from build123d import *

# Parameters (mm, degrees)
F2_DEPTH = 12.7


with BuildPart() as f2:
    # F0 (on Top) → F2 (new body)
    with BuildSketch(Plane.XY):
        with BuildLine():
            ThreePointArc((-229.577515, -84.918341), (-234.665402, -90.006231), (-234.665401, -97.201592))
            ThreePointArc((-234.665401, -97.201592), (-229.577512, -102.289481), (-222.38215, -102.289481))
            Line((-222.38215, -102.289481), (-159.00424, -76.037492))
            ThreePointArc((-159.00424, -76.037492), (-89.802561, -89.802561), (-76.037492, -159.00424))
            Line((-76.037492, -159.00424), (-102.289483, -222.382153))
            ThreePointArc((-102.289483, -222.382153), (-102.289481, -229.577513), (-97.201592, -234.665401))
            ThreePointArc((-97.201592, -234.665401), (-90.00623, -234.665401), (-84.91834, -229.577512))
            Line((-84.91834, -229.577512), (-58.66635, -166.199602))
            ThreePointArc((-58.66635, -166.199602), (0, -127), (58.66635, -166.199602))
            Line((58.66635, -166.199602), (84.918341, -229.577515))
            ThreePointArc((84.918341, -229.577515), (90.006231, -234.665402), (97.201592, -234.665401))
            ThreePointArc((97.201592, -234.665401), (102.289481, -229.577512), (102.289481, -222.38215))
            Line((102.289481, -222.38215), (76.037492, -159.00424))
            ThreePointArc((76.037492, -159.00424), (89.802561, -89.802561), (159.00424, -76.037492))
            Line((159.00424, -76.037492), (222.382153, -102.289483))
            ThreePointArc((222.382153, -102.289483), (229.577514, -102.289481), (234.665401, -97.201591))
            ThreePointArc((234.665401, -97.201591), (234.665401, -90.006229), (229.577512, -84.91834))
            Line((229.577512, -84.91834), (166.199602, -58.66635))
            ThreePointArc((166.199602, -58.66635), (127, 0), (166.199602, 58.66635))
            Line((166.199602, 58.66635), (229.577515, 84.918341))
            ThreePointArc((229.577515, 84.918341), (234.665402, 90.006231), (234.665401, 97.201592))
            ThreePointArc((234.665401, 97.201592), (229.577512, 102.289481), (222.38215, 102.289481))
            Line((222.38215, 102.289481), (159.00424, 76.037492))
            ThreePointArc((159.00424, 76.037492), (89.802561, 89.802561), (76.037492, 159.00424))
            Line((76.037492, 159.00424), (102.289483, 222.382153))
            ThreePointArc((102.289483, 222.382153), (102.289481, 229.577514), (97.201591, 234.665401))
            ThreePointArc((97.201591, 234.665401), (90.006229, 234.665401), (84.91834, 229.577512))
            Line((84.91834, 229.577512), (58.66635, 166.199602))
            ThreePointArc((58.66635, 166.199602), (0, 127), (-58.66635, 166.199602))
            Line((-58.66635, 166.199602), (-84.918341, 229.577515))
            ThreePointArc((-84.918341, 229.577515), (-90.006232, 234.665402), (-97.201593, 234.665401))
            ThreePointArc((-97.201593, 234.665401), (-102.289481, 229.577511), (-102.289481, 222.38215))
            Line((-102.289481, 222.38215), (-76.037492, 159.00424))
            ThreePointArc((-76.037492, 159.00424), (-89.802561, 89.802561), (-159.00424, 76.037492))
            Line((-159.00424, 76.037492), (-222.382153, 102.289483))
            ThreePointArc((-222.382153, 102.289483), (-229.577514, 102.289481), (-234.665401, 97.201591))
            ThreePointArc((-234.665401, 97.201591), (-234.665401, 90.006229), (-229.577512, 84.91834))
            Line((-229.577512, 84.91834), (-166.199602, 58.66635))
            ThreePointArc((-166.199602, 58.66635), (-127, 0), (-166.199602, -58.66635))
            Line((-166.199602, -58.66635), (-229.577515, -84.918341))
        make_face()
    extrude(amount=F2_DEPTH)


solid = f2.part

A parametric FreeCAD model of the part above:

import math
import FreeCAD as App
import Part
import Sketcher

V = App.Vector
Q = App.Units.Quantity

doc = App.newDocument("Part")
params = doc.addObject("Spreadsheet::Sheet", "Params")
for row, (alias, value) in enumerate([
    ("sketch1_radius", "2.5 in"),
    ("pad1_length", "0.5 in"),
], start=1):
    params.set(f"A{row}", alias)
    params.set(f"B{row}", "=" + value)
    params.setAlias(f"B{row}", alias)

body = doc.addObject("PartDesign::Body", "Body")

# Sketch on XY plane
sketch1 = body.newObject("Sketcher::SketchObject", "Sketch")
sketch1.AttachmentSupport = (doc.getObject("XY_Plane"), [""])
sketch1.MapMode = "FlatFace"
sketch1.addGeometry([
    Part.ArcOfCircle(Part.Circle(V(-226, -94, 0), V(0, 0, 1), 9), math.radians(113), math.radians(203)),  # 0
    Part.ArcOfCircle(Part.Circle(V(-226, -94, 0), V(0, 0, 1), 9), math.radians(-157), math.radians(-67)),  # 1
    Part.LineSegment(V(-222, -102, 0), V(-159, -76, 0)),  # 2
    Part.ArcOfCircle(Part.Circle(V(-135, -135, 0), V(0, 0, 1), 63), math.radians(-23), math.radians(113)),  # 3
    Part.LineSegment(V(-76, -159, 0), V(-102, -222, 0)),  # 4
    Part.ArcOfCircle(Part.Circle(V(-94, -226, 0), V(0, 0, 1), 9), math.radians(158), math.radians(248)),  # 5
    Part.ArcOfCircle(Part.Circle(V(-94, -226, 0), V(0, 0, 1), 9), math.radians(-112), math.radians(-23)),  # 6
    Part.LineSegment(V(-85, -230, 0), V(-59, -166, 0)),  # 7
    Part.ArcOfCircle(Part.Circle(V(0, -190, 0), V(0, 0, 1), 63), math.radians(22), math.radians(158)),  # 8
    Part.LineSegment(V(59, -166, 0), V(85, -230, 0)),  # 9
    Part.ArcOfCircle(Part.Circle(V(94, -226, 0), V(0, 0, 1), 9), math.radians(-157), math.radians(-67)),  # 10
    Part.ArcOfCircle(Part.Circle(V(94, -226, 0), V(0, 0, 1), 9), math.radians(-67), math.radians(23)),  # 11
    Part.LineSegment(V(102, -222, 0), V(76, -159, 0)),  # 12
    Part.ArcOfCircle(Part.Circle(V(135, -135, 0), V(0, 0, 1), 63), math.radians(67), math.radians(203)),  # 13
    Part.LineSegment(V(159, -76, 0), V(222, -102, 0)),  # 14
    Part.ArcOfCircle(Part.Circle(V(226, -94, 0), V(0, 0, 1), 9), math.radians(-112), math.radians(-22)),  # 15
    Part.ArcOfCircle(Part.Circle(V(226, -94, 0), V(0, 0, 1), 9), math.radians(-23), math.radians(67)),  # 16
    Part.LineSegment(V(230, -85, 0), V(166, -59, 0)),  # 17
    Part.ArcOfCircle(Part.Circle(V(190, 0, 0), V(0, 0, 1), 63), math.radians(112), math.radians(248)),  # 18
    Part.LineSegment(V(166, 59, 0), V(230, 85, 0)),  # 19
    Part.ArcOfCircle(Part.Circle(V(226, 94, 0), V(0, 0, 1), 9), math.radians(-67), math.radians(23)),  # 20
    Part.ArcOfCircle(Part.Circle(V(226, 94, 0), V(0, 0, 1), 9), math.radians(23), math.radians(113)),  # 21
    Part.LineSegment(V(222, 102, 0), V(159, 76, 0)),  # 22
    Part.ArcOfCircle(Part.Circle(V(135, 135, 0), V(0, 0, 1), 63), math.radians(157), math.radians(293)),  # 23
    Part.LineSegment(V(76, 159, 0), V(102, 222, 0)),  # 24
    Part.ArcOfCircle(Part.Circle(V(94, 226, 0), V(0, 0, 1), 9), math.radians(-22), math.radians(68)),  # 25
    Part.ArcOfCircle(Part.Circle(V(94, 226, 0), V(0, 0, 1), 9), math.radians(67), math.radians(157)),  # 26
    Part.LineSegment(V(85, 230, 0), V(59, 166, 0)),  # 27
    Part.ArcOfCircle(Part.Circle(V(0, 190, 0), V(0, 0, 1), 63), math.radians(-158), math.radians(-22)),  # 28
    Part.LineSegment(V(-59, 166, 0), V(-85, 230, 0)),  # 29
    Part.ArcOfCircle(Part.Circle(V(-94, 226, 0), V(0, 0, 1), 9), math.radians(23), math.radians(112)),  # 30
    Part.ArcOfCircle(Part.Circle(V(-94, 226, 0), V(0, 0, 1), 9), math.radians(113), math.radians(202)),  # 31
    Part.LineSegment(V(-102, 222, 0), V(-76, 159, 0)),  # 32
    Part.ArcOfCircle(Part.Circle(V(-135, 135, 0), V(0, 0, 1), 63), math.radians(-113), math.radians(23)),  # 33
    Part.LineSegment(V(-159, 76, 0), V(-222, 102, 0)),  # 34
    Part.ArcOfCircle(Part.Circle(V(-226, 94, 0), V(0, 0, 1), 9), math.radians(68), math.radians(158)),  # 35
    Part.ArcOfCircle(Part.Circle(V(-226, 94, 0), V(0, 0, 1), 9), math.radians(157), math.radians(247)),  # 36
    Part.LineSegment(V(-230, 85, 0), V(-166, 59, 0)),  # 37
    Part.ArcOfCircle(Part.Circle(V(-190, 0, 0), V(0, 0, 1), 63), math.radians(-68), math.radians(68)),  # 38
    Part.LineSegment(V(-166, -59, 0), V(-230, -85, 0)),  # 39
], False)
sketch1.addConstraint([
    Sketcher.Constraint("Tangent", 0, 2, 1, 1),
    Sketcher.Constraint("Tangent", 1, 2, 2, 1),
    Sketcher.Constraint("Tangent", 2, 2, 3, 2),
    Sketcher.Constraint("Tangent", 3, 1, 4, 1),
    Sketcher.Constraint("Tangent", 4, 2, 5, 1),
    Sketcher.Constraint("Tangent", 5, 2, 6, 1),
    Sketcher.Constraint("Tangent", 6, 2, 7, 1),
    Sketcher.Constraint("Tangent", 7, 2, 8, 2),
    Sketcher.Constraint("Tangent", 8, 1, 9, 1),
    Sketcher.Constraint("Tangent", 9, 2, 10, 1),
    Sketcher.Constraint("Tangent", 10, 2, 11, 1),
    Sketcher.Constraint("Tangent", 11, 2, 12, 1),
    Sketcher.Constraint("Tangent", 12, 2, 13, 2),
    Sketcher.Constraint("Tangent", 13, 1, 14, 1),
    Sketcher.Constraint("Tangent", 14, 2, 15, 1),
    Sketcher.Constraint("Tangent", 15, 2, 16, 1),
    Sketcher.Constraint("Tangent", 16, 2, 17, 1),
    Sketcher.Constraint("Tangent", 17, 2, 18, 2),
    Sketcher.Constraint("Tangent", 18, 1, 19, 1),
    Sketcher.Constraint("Tangent", 19, 2, 20, 1),
    Sketcher.Constraint("Tangent", 20, 2, 21, 1),
    Sketcher.Constraint("Tangent", 21, 2, 22, 1),
    Sketcher.Constraint("Tangent", 22, 2, 23, 2),
    Sketcher.Constraint("Tangent", 23, 1, 24, 1),
    Sketcher.Constraint("Tangent", 24, 2, 25, 1),
    Sketcher.Constraint("Tangent", 25, 2, 26, 1),
    Sketcher.Constraint("Tangent", 26, 2, 27, 1),
    Sketcher.Constraint("Tangent", 27, 2, 28, 2),
    Sketcher.Constraint("Tangent", 28, 1, 29, 1),
    Sketcher.Constraint("Tangent", 29, 2, 30, 1),
    Sketcher.Constraint("Tangent", 30, 2, 31, 1),
    Sketcher.Constraint("Tangent", 31, 2, 32, 1),
    Sketcher.Constraint("Tangent", 32, 2, 33, 2),
    Sketcher.Constraint("Tangent", 33, 1, 34, 1),
    Sketcher.Constraint("Tangent", 34, 2, 35, 1),
    Sketcher.Constraint("Tangent", 35, 2, 36, 1),
    Sketcher.Constraint("Tangent", 36, 2, 37, 1),
    Sketcher.Constraint("Tangent", 37, 2, 38, 2),
    Sketcher.Constraint("Tangent", 38, 1, 39, 1),
    Sketcher.Constraint("Tangent", 39, 2, 0, 1),
    Sketcher.Constraint("Equal", 0, 1),
    Sketcher.Constraint("Equal", 1, 5),
    Sketcher.Constraint("Equal", 5, 6),
    Sketcher.Constraint("Equal", 3, 8),
    Sketcher.Constraint("Equal", 6, 10),
    Sketcher.Constraint("Equal", 10, 11),
    Sketcher.Constraint("Equal", 8, 13),
    Sketcher.Constraint("Equal", 11, 15),
    Sketcher.Constraint("Equal", 15, 16),
    Sketcher.Constraint("Equal", 13, 18),
    Sketcher.Constraint("Equal", 16, 20),
    Sketcher.Constraint("Equal", 20, 21),
    Sketcher.Constraint("Equal", 18, 23),
    Sketcher.Constraint("Equal", 21, 25),
    Sketcher.Constraint("Equal", 25, 26),
    Sketcher.Constraint("Equal", 23, 28),
    Sketcher.Constraint("Equal", 20, 30),
    Sketcher.Constraint("Equal", 30, 31),
    Sketcher.Constraint("Equal", 28, 33),
    Sketcher.Constraint("Equal", 26, 35),
    Sketcher.Constraint("Equal", 35, 36),
    Sketcher.Constraint("Equal", 33, 38),
    Sketcher.Constraint("Symmetric", 0, 3, 20, 3, -1, 1),
    Sketcher.Constraint("Symmetric", 3, 3, 23, 3, -1, 1),
    Sketcher.Constraint("Symmetric", 5, 3, 25, 3, -1, 1),
    Sketcher.Constraint("Symmetric", 8, 3, 28, 3, -1, 1),
    Sketcher.Constraint("Symmetric", 10, 3, 30, 3, -1, 1),
    Sketcher.Constraint("Symmetric", 13, 3, 33, 3, -1, 1),
    Sketcher.Constraint("Symmetric", 15, 3, 35, 3, -1, 1),
    Sketcher.Constraint("Symmetric", 18, 3, 38, 3, -1, 1),
    Sketcher.Constraint("Symmetric", 5, 3, 10, 3, -2),
    Sketcher.Constraint("Symmetric", 3, 3, 13, 3, -2),
    Sketcher.Constraint("Symmetric", 0, 3, 15, 3, -2),
    Sketcher.Constraint("PointOnObject", 8, 3, -2),
    Sketcher.Constraint("PointOnObject", 18, 3, -1),
    Sketcher.Constraint("Parallel", 4, 7),
    Sketcher.Constraint("Perpendicular", 2, 9),
    Sketcher.Constraint("Parallel", 14, 17),
    Sketcher.Constraint("Horizontal", 5, 2, 10, 2),
    Sketcher.Constraint("Horizontal", 0, 2, 15, 2),
    Sketcher.Constraint("Horizontal", 25, 2, 30, 2),
    Sketcher.Constraint("Horizontal", 20, 2, 35, 2),
    Sketcher.Constraint("Vertical", 15, 2, 20, 2),
    Sketcher.Constraint("Vertical", 10, 2, 25, 2),
    Sketcher.Constraint("Equal", 2, 7),
    Sketcher.Constraint("Equal", 4, 9),
    Sketcher.Constraint("Equal", 12, 17),
    Sketcher.Constraint("Radius", 3, Q("2.5 in")),
    Sketcher.Constraint("DistanceY", 8, 3, -1, 1, Q("7.5 in")),
    Sketcher.Constraint("Angle", 2, Q("22.499999 deg")),
    Sketcher.Constraint("DistanceX", 0, 2, -1, 1, 234.665401),
    Sketcher.Constraint("DistanceY", 5, 2, -1, 1, 234.665401),
    Sketcher.Constraint("Distance", 4, 68.599759),
])
sketch1.setExpression("Constraints[87]", "Params.sketch1_radius")
pad1 = body.newObject("PartDesign::Pad", "Pad")
pad1.Profile = sketch1
pad1.setExpression("Length", "Params.pad1_length")

doc.recompute()
